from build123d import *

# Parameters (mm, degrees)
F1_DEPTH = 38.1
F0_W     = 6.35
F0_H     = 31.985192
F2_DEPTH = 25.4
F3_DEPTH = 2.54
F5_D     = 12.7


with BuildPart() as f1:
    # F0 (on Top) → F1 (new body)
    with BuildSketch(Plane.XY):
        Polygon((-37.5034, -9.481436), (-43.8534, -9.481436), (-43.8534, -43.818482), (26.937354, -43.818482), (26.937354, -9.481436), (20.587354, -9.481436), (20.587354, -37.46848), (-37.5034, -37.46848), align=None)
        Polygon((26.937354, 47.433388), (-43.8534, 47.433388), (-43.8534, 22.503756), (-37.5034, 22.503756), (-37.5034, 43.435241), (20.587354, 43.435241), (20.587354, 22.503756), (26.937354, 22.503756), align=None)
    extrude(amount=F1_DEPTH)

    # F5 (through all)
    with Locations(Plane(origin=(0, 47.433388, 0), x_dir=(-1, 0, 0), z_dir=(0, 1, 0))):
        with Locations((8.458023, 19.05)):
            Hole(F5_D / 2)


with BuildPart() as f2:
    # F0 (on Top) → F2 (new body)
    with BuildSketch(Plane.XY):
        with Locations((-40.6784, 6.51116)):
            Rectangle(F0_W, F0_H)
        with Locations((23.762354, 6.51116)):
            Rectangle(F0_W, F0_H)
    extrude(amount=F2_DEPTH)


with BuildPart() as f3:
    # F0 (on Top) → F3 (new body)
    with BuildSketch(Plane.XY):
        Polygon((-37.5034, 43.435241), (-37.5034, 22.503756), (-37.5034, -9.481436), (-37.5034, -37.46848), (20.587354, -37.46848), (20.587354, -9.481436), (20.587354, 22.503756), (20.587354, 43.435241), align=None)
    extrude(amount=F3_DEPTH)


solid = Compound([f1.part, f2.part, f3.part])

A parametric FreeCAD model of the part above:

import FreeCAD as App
import Part
import Sketcher
Q = App.Units.Quantity

doc = App.newDocument("Part")
body = doc.addObject("PartDesign::Body", "Body")
body.AllowCompound = True

sketch1 = body.newObject("Sketcher::SketchObject", "Sketch")
sketch1.AttachmentSupport = (doc.getObject("XY_Plane"), [""])
sketch1.MapMode = "FlatFace"
sketch1.addGeometry([
    Part.LineSegment(App.Vector(-38, -9, 0), App.Vector(-44, -9, 0)),
    Part.LineSegment(App.Vector(-44, -9, 0), App.Vector(-44, -44, 0)),
    Part.LineSegment(App.Vector(-44, -44, 0), App.Vector(27, -44, 0)),
    Part.LineSegment(App.Vector(27, -44, 0), App.Vector(27, -9, 0)),
    Part.LineSegment(App.Vector(27, -9, 0), App.Vector(21, -9, 0)),
    Part.LineSegment(App.Vector(21, -9, 0), App.Vector(21, -37, 0)),
    Part.LineSegment(App.Vector(21, -37, 0), App.Vector(-38, -37, 0)),
    Part.LineSegment(App.Vector(-38, -37, 0), App.Vector(-38, -9, 0)),
    Part.LineSegment(App.Vector(27, 47, 0), App.Vector(-44, 47, 0)),
    Part.LineSegment(App.Vector(-44, 47, 0), App.Vector(-44, 23, 0)),
    Part.LineSegment(App.Vector(-44, 23, 0), App.Vector(-38, 23, 0)),
    Part.LineSegment(App.Vector(-38, 23, 0), App.Vector(-38, 43, 0)),
    Part.LineSegment(App.Vector(-38, 43, 0), App.Vector(21, 43, 0)),
    Part.LineSegment(App.Vector(21, 43, 0), App.Vector(21, 23, 0)),
    Part.LineSegment(App.Vector(21, 23, 0), App.Vector(27, 23, 0)),
    Part.LineSegment(App.Vector(27, 23, 0), App.Vector(27, 47, 0)),
], False)
sketch1.addConstraint([
    Sketcher.Constraint("Coincident", 0, 2, 1, 1),
    Sketcher.Constraint("Coincident", 1, 2, 2, 1),
    Sketcher.Constraint("Coincident", 2, 2, 3, 1),
    Sketcher.Constraint("Coincident", 3, 2, 4, 1),
    Sketcher.Constraint("Coincident", 4, 2, 5, 1),
    Sketcher.Constraint("Coincident", 5, 2, 6, 1),
    Sketcher.Constraint("Coincident", 6, 2, 7, 1),
    Sketcher.Constraint("Coincident", 7, 2, 0, 1),
    Sketcher.Constraint("Coincident", 8, 2, 9, 1),
    Sketcher.Constraint("Coincident", 9, 2, 10, 1),
    Sketcher.Constraint("Coincident", 10, 2, 11, 1),
    Sketcher.Constraint("Coincident", 11, 2, 12, 1),
    Sketcher.Constraint("Coincident", 12, 2, 13, 1),
    Sketcher.Constraint("Coincident", 13, 2, 14, 1),
    Sketcher.Constraint("Coincident", 14, 2, 15, 1),
    Sketcher.Constraint("Coincident", 15, 2, 8, 1),
    Sketcher.Constraint("Horizontal", 0),
    Sketcher.Constraint("Vertical", 1),
    Sketcher.Constraint("Horizontal", 2),
    Sketcher.Constraint("Vertical", 3),
    Sketcher.Constraint("Horizontal", 4),
    Sketcher.Constraint("Vertical", 5),
    Sketcher.Constraint("Horizontal", 6),
    Sketcher.Constraint("Vertical", 7),
    Sketcher.Constraint("Horizontal", 8),
    Sketcher.Constraint("Vertical", 9),
    Sketcher.Constraint("Horizontal", 10),
    Sketcher.Constraint("Vertical", 11),
    Sketcher.Constraint("Horizontal", 12),
    Sketcher.Constraint("Vertical", 13),
    Sketcher.Constraint("Horizontal", 14),
    Sketcher.Constraint("Vertical", 15),
    Sketcher.Constraint("Horizontal", 0, 2, 3, 2),
    Sketcher.Constraint("Horizontal", 10, 2, 13, 2),
    Sketcher.Constraint("Vertical", 1, 2, 8, 2),
    Sketcher.Constraint("Vertical", 7, 2, 10, 2),
    Sketcher.Constraint("Vertical", 5, 2, 12, 2),
    Sketcher.Constraint("Vertical", 3, 2, 14, 2),
    Sketcher.Constraint("Equal", 0, 4),
    Sketcher.Constraint("DistanceX", 0, 2, 0, 1, Q("0.25 in")),
    Sketcher.Constraint("DistanceY", 2, 2, 5, 2, Q("0.2500001 in")),
    Sketcher.Constraint("DistanceX", 0, 2, -1, 1, 43.8534),
    Sketcher.Constraint("DistanceX", 2, 1, 2, 2, 70.790754),
    Sketcher.Constraint("DistanceY", 1, 2, 1, 1, 34.337046),
    Sketcher.Constraint("DistanceY", 9, 2, 9, 1, 24.929632),
    Sketcher.Constraint("DistanceY", 11, 1, 11, 2, 20.931485),
    Sketcher.Constraint("DistanceY", 5, 2, -1, 1, 37.46848),
    Sketcher.Constraint("DistanceY", -1, 1, 11, 2, 43.435241),
])
pad1 = body.newObject("PartDesign::Pad", "Pad")
pad1.Profile = sketch1
pad1.Length = Q("1.5 in")

sketch2 = body.newObject("Sketcher::SketchObject", "Sketch001")
sketch2.AttachmentSupport = (doc.getObject("XZ_Plane"), [""])
sketch2.MapMode = "FlatFace"
sketch2.AttachmentOffset = App.Placement(App.Vector(0, 0, -47.433388), App.Rotation())
sketch2.addGeometry(Part.Circle(App.Vector(-8, 19, 0), App.Vector(0, 0, 1), 6), False)
sketch2.addConstraint([
    Sketcher.Constraint("Diameter", 0, Q("0.5 in")),
    Sketcher.Constraint("DistanceY", -1, 1, 0, 3, Q("0.75 in")),
    Sketcher.Constraint("DistanceX", 0, 3, -1, 1, 8.458023),
])
doc.recompute()
hole = body.newObject("PartDesign::Hole", "Hole")
hole.Profile = sketch2
hole.ThreadType = "None"
hole.Diameter = Q("0.5 in")
hole.DepthType = "ThroughAll"
hole.Reversed = True
body2 = doc.addObject("PartDesign::Body", "Body001")
body2.AllowCompound = True

sketch3 = body2.newObject("Sketcher::SketchObject", "Sketch002")
sketch3.AttachmentSupport = (doc.getObject("XY_Plane001"), [""])
sketch3.MapMode = "FlatFace"
sketch3.addGeometry([
    Part.LineSegment(App.Vector(-44, 23, 0), App.Vector(-44, -9, 0)),
    Part.LineSegment(App.Vector(-44, -9, 0), App.Vector(-38, -9, 0)),
    Part.LineSegment(App.Vector(-38, -9, 0), App.Vector(-38, 23, 0)),
    Part.LineSegment(App.Vector(-38, 23, 0), App.Vector(-44, 23, 0)),
    Part.LineSegment(App.Vector(21, 23, 0), App.Vector(21, -9, 0)),
    Part.LineSegment(App.Vector(21, -9, 0), App.Vector(27, -9, 0)),
    Part.LineSegment(App.Vector(27, -9, 0), App.Vector(27, 23, 0)),
    Part.LineSegment(App.Vector(27, 23, 0), App.Vector(21, 23, 0)),
], False)
sketch3.addConstraint([
    Sketcher.Constraint("Coincident", 0, 2, 1, 1),
    Sketcher.Constraint("Coincident", 1, 2, 2, 1),
    Sketcher.Constraint("Coincident", 2, 2, 3, 1),
    Sketcher.Constraint("Coincident", 3, 2, 0, 1),
    Sketcher.Constraint("Coincident", 4, 2, 5, 1),
    Sketcher.Constraint("Coincident", 5, 2, 6, 1),
    Sketcher.Constraint("Coincident", 6, 2, 7, 1),
    Sketcher.Constraint("Coincident", 7, 2, 4, 1),
    Sketcher.Constraint("Vertical", 0),
    Sketcher.Constraint("Horizontal", 1),
    Sketcher.Constraint("Vertical", 2),
    Sketcher.Constraint("Horizontal", 3),
    Sketcher.Constraint("Vertical", 4),
    Sketcher.Constraint("Horizontal", 5),
    Sketcher.Constraint("Vertical", 6),
    Sketcher.Constraint("Horizontal", 7),
    Sketcher.Constraint("Horizontal", 1, 2, 4, 2),
    Sketcher.Constraint("Horizontal", 3, 2, 6, 2),
    Sketcher.Constraint("Equal", 3, 5),
    Sketcher.Constraint("DistanceX", 1, 1, 1, 2, Q("0.25 in")),
    Sketcher.Constraint("DistanceY", 0, 2, 0, 1, 31.985192),
    Sketcher.Constraint("DistanceX", 0, 2, -1, 1, 43.8534),
    Sketcher.Constraint("DistanceY", 0, 2, -1, 1, 9.481436),
    Sketcher.Constraint("DistanceX", -1, 1, 4, 2, 20.587354),
])
pad2 = body2.newObject("PartDesign::Pad", "Pad001")
pad2.Profile = sketch3
pad2.Length = Q("1 in")
body3 = doc.addObject("PartDesign::Body", "Body002")

sketch4 = body3.newObject("Sketcher::SketchObject", "Sketch003")
sketch4.AttachmentSupport = (doc.getObject("XY_Plane002"), [""])
sketch4.MapMode = "FlatFace"
sketch4.addGeometry([
    Part.LineSegment(App.Vector(-38, 43, 0), App.Vector(-38, -37, 0)),
    Part.LineSegment(App.Vector(-38, -37, 0), App.Vector(21, -37, 0)),
    Part.LineSegment(App.Vector(21, -37, 0), App.Vector(21, 43, 0)),
    Part.LineSegment(App.Vector(21, 43, 0), App.Vector(-38, 43, 0)),
], False)
sketch4.addConstraint([
    Sketcher.Constraint("Coincident", 0, 2, 1, 1),
    Sketcher.Constraint("Coincident", 1, 2, 2, 1),
    Sketcher.Constraint("Coincident", 2, 2, 3, 1),
    Sketcher.Constraint("Coincident", 3, 2, 0, 1),
    Sketcher.Constraint("Vertical", 0),
    Sketcher.Constraint("Horizontal", 1),
    Sketcher.Constraint("Vertical", 2),
    Sketcher.Constraint("Horizontal", 3),
    Sketcher.Constraint("DistanceY", 0, 2, 0, 1, 80.903721),
    Sketcher.Constraint("DistanceX", 0, 2, -1, 1, 37.5034),
    Sketcher.Constraint("DistanceX", 1, 1, 1, 2, 58.090754),
    Sketcher.Constraint("DistanceY", 0, 2, -1, 1, 37.46848),
])
pad3 = body3.newObject("PartDesign::Pad", "Pad002")
pad3.Profile = sketch4
pad3.Length = Q("0.1 in")

doc.recompute()
